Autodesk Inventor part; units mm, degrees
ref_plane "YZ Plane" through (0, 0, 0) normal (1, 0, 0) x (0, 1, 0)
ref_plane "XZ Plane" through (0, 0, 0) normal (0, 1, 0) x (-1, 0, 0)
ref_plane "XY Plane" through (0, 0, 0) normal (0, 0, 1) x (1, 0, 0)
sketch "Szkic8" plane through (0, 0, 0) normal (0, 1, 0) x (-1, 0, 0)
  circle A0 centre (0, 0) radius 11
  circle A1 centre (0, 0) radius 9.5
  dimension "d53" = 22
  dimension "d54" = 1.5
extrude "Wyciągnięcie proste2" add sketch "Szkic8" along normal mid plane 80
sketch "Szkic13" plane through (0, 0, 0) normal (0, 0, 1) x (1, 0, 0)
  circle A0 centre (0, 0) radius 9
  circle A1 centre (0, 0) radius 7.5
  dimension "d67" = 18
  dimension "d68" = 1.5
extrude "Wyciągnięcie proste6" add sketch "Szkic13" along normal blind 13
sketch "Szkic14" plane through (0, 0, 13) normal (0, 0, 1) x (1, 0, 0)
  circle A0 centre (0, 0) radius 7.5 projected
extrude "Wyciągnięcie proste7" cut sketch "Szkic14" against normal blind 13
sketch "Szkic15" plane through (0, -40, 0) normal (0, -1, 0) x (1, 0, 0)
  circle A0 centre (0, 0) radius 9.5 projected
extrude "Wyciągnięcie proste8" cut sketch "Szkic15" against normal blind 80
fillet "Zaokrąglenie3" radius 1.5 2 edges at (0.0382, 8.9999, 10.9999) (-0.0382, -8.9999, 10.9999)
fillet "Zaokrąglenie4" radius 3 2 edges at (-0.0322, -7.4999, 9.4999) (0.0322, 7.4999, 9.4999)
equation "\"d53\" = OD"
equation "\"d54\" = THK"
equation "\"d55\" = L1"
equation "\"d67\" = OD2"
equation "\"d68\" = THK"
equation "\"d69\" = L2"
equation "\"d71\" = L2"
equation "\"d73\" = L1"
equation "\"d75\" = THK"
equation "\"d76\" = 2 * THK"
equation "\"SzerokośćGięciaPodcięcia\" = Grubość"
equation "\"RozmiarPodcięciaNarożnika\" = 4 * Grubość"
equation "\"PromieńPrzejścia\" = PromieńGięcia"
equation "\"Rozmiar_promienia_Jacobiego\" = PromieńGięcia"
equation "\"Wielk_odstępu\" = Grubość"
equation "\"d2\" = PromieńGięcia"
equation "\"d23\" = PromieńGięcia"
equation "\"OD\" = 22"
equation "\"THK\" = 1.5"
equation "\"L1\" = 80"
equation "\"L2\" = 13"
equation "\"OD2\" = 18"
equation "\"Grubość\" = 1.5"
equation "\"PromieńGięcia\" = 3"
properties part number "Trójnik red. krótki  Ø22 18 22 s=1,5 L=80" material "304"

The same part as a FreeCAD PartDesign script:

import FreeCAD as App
import Part
import Sketcher
from FreeCAD import Vector
Q = App.Units.Quantity


def edges_at(feature, points):
    """Names of the edges that pass closest to the given points."""
    edges = feature.Shape.Edges
    near = lambda p: min(range(len(edges)), key=lambda i: edges[i].distToShape(Part.Vertex(*p))[0])
    return sorted({f"Edge{near(p) + 1}" for p in points})

doc = App.newDocument("Part")
body = doc.addObject("PartDesign::Body", "Body")

sketch1 = body.newObject("Sketcher::SketchObject", "Sketch")
sketch1.AttachmentSupport = (doc.getObject("XZ_Plane"), [""])
sketch1.MapMode = "FlatFace"
sketch1.addGeometry(Part.Circle(Vector(0, 0, 0), Vector(0, 0, 1), 11), False)
sketch1.addGeometry(Part.Circle(Vector(0, 0, 0), Vector(0, 0, 1), 10), False)
sketch1.addConstraint(Sketcher.Constraint("Coincident", 0, 3, -1, 1))
sketch1.addConstraint(Sketcher.Constraint("Coincident", 1, 3, -1, 1))
sketch1.addConstraint(Sketcher.Constraint("Diameter", 0, Q("22 mm")))
sketch1.addConstraint(Sketcher.Constraint("Diameter", 1, Q("19 mm")))
pad1 = body.newObject("PartDesign::Pad", "Pad")
pad1.Profile = sketch1
pad1.Length = 80
pad1.Midplane = True

sketch2 = body.newObject("Sketcher::SketchObject", "Sketch001")
sketch2.AttachmentSupport = (doc.getObject("XY_Plane"), [""])
sketch2.MapMode = "FlatFace"
sketch2.addGeometry(Part.Circle(Vector(0, 0, 0), Vector(0, 0, 1), 9), False)
sketch2.addGeometry(Part.Circle(Vector(0, 0, 0), Vector(0, 0, 1), 8), False)
sketch2.addConstraint(Sketcher.Constraint("Coincident", 0, 3, -1, 1))
sketch2.addConstraint(Sketcher.Constraint("Coincident", 1, 3, -1, 1))
sketch2.addConstraint(Sketcher.Constraint("Diameter", 0, Q("18 mm")))
sketch2.addConstraint(Sketcher.Constraint("Diameter", 1, Q("15 mm")))
pad2 = body.newObject("PartDesign::Pad", "Pad001")
pad2.Profile = sketch2
pad2.Length = 13

sketch3 = body.newObject("Sketcher::SketchObject", "Sketch002")
sketch3.AttachmentSupport = (doc.getObject("XY_Plane"), [""])
sketch3.MapMode = "FlatFace"
sketch3.AttachmentOffset = App.Placement(Vector(0, 0, 13), App.Rotation())
sketch3.addGeometry(Part.Circle(Vector(0, 0, 0), Vector(0, 0, 1), 8), False)
sketch3.addConstraint(Sketcher.Constraint("Coincident", 0, 3, -1, 1))
sketch3.addConstraint(Sketcher.Constraint("Diameter", 0, Q("15 mm")))
pocket1 = body.newObject("PartDesign::Pocket", "Pocket")
pocket1.Profile = sketch3
pocket1.Length = 13

sketch4 = body.newObject("Sketcher::SketchObject", "Sketch003")
sketch4.AttachmentSupport = (doc.getObject("XZ_Plane"), [""])
sketch4.MapMode = "FlatFace"
sketch4.AttachmentOffset = App.Placement(Vector(0, 0, 40), App.Rotation())
sketch4.addGeometry(Part.Circle(Vector(0, 0, 0), Vector(0, 0, 1), 10), False)
sketch4.addConstraint(Sketcher.Constraint("Coincident", 0, 3, -1, 1))
sketch4.addConstraint(Sketcher.Constraint("Diameter", 0, Q("19 mm")))
pocket2 = body.newObject("PartDesign::Pocket", "Pocket001")
pocket2.Profile = sketch4
pocket2.Length = 80
doc.recompute()

fillet = body.newObject("PartDesign::Fillet", "Fillet")
fillet.Base = (pocket2, edges_at(pocket2, [(0.038, 9, 11), (-0.038, -9, 11)]))
fillet.Radius = 1.5
doc.recompute()

fillet2 = body.newObject("PartDesign::Fillet", "Fillet001")
fillet2.Base = (fillet, edges_at(fillet, [(-0.032, -7.5, 9.5), (0.032, 7.5, 9.5)]))
fillet2.Radius = 3

doc.recompute()
